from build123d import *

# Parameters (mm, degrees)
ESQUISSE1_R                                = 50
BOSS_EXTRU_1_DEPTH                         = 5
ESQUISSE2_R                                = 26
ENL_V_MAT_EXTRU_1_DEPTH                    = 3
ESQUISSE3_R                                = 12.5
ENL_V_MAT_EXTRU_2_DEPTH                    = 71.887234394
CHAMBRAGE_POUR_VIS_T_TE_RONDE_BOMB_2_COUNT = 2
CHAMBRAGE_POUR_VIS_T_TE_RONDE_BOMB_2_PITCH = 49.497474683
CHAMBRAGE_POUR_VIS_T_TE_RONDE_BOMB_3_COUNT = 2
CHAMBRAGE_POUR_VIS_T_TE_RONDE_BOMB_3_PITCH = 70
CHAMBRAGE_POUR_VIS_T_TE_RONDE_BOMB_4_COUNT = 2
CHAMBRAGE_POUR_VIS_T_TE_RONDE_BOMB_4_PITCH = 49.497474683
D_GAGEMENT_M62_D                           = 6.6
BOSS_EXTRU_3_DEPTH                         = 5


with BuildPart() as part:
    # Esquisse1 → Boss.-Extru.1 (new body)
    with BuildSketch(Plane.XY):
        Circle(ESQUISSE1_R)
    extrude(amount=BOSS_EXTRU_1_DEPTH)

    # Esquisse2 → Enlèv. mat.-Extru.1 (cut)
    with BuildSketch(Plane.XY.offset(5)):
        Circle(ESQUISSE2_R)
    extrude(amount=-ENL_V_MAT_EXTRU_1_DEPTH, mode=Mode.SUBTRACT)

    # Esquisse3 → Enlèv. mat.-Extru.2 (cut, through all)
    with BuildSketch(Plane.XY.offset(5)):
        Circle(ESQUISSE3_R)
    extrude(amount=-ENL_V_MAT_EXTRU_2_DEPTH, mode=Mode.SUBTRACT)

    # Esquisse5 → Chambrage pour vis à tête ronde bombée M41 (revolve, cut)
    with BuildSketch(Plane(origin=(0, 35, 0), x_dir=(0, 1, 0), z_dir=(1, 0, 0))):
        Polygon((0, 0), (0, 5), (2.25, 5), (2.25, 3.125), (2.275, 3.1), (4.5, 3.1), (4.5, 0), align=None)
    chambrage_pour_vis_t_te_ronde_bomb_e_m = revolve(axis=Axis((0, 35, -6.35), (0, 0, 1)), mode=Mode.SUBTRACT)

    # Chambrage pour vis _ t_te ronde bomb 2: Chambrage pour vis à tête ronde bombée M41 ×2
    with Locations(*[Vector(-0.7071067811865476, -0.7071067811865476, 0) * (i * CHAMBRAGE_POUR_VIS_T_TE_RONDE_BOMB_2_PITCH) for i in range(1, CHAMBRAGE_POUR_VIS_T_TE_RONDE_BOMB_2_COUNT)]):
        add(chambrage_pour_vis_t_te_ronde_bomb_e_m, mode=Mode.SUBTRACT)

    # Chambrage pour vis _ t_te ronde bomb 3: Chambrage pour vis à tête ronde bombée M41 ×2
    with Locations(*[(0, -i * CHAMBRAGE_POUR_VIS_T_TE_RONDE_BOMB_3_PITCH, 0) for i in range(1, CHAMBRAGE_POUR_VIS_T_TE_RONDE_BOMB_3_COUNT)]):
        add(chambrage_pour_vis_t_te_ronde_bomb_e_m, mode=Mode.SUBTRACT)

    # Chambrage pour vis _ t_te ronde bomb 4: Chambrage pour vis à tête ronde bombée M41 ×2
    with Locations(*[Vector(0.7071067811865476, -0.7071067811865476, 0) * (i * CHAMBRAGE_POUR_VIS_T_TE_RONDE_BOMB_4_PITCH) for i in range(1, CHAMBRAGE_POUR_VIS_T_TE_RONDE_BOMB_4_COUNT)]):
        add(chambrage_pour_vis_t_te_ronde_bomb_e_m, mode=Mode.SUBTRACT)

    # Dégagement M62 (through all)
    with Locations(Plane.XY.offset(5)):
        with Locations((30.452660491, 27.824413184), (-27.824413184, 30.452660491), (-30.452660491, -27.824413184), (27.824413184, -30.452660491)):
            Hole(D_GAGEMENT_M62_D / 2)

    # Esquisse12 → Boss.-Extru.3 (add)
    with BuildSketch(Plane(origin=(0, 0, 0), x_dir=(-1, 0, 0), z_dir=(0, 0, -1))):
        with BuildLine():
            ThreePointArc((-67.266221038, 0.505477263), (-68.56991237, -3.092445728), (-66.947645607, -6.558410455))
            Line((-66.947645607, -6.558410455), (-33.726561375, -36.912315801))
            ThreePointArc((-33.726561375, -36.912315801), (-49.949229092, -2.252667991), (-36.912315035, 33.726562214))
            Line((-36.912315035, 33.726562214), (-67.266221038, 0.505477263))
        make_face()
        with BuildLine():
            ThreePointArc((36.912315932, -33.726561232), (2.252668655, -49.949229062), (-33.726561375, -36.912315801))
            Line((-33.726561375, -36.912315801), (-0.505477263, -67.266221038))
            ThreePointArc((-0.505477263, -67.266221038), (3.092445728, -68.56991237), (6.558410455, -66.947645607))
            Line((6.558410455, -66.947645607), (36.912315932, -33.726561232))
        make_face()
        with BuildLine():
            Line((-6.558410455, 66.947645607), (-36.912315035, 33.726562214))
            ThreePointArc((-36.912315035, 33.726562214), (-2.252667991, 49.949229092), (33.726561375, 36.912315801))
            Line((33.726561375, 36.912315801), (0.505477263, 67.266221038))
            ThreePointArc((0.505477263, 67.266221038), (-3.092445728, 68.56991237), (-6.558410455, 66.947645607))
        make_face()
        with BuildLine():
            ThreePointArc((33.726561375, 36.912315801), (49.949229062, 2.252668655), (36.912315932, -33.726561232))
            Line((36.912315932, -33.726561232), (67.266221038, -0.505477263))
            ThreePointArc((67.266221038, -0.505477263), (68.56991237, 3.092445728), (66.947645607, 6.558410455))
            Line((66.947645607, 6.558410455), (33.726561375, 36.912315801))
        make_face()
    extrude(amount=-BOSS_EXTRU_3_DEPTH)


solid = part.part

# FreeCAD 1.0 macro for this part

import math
import FreeCAD as App
import Part
import Sketcher

V = App.Vector
Q = App.Units.Quantity


def add_polygon(sketch, points):
    """Adds a closed chain of lines whose ends are joined by coincident constraints."""
    first, n = sketch.GeometryCount, len(points)
    for a, b in zip(points, points[1:] + points[:1]):
        sketch.addGeometry(Part.LineSegment(App.Vector(*a, 0), App.Vector(*b, 0)), False)
    for i in range(n):
        sketch.addConstraint(Sketcher.Constraint("Coincident", first + i, 2, first + (i + 1) % n, 1))

doc = App.newDocument("Part")
body = doc.addObject("PartDesign::Body", "Body")

sketch1 = doc.addObject("Sketcher::SketchObject", "Sketch")
body.addObject(sketch1)
sketch1.AttachmentSupport = (doc.XY_Plane, [""])
sketch1.MapMode = "FlatFace"
sketch1.addGeometry(Part.Circle(V(0, 0, 0), V(0, 0, 1), 50), False)
sketch1.addConstraint(Sketcher.Constraint("Coincident", 0, 3, -1, 1))
sketch1.addConstraint(Sketcher.Constraint("Diameter", 0, 100.0))
pad1 = doc.addObject("PartDesign::Pad", "Pad")
body.addObject(pad1)
pad1.Profile = sketch1
pad1.Length = 5

sketch2 = doc.addObject("Sketcher::SketchObject", "Sketch001")
body.addObject(sketch2)
sketch2.AttachmentSupport = (doc.XY_Plane, [""])
sketch2.MapMode = "FlatFace"
sketch2.AttachmentOffset = App.Placement(V(0, 0, 5), App.Rotation())
sketch2.addGeometry(Part.Circle(V(0, 0, 0), V(0, 0, 1), 26), False)
sketch2.addConstraint(Sketcher.Constraint("Coincident", 0, 3, -1, 1))
sketch2.addConstraint(Sketcher.Constraint("Diameter", 0, 52.0))
pocket1 = doc.addObject("PartDesign::Pocket", "Pocket")
body.addObject(pocket1)
pocket1.Profile = sketch2
pocket1.Length = 3

sketch3 = doc.addObject("Sketcher::SketchObject", "Sketch002")
body.addObject(sketch3)
sketch3.AttachmentSupport = (doc.XY_Plane, [""])
sketch3.MapMode = "FlatFace"
sketch3.AttachmentOffset = App.Placement(V(0, 0, 5), App.Rotation())
sketch3.addGeometry(Part.Circle(V(0, 0, 0), V(0, 0, 1), 12.5), False)
sketch3.addConstraint(Sketcher.Constraint("Coincident", 0, 3, -1, 1))
sketch3.addConstraint(Sketcher.Constraint("Diameter", 0, 25.0))
pocket2 = doc.addObject("PartDesign::Pocket", "Pocket001")
body.addObject(pocket2)
pocket2.Profile = sketch3
pocket2.Type = "ThroughAll"

sketch4 = doc.addObject("Sketcher::SketchObject", "Sketch003")
body.addObject(sketch4)
sketch4.AttachmentSupport = (doc.YZ_Plane, [""])
sketch4.MapMode = "FlatFace"
add_polygon(sketch4, [(35, 5), (35, 0), (39.5, 0), (39.5, 3.1), (37.275, 3.1), (37.25, 3.125), (37.25, 5)])
sketch4.addGeometry(Part.LineSegment(V(35, 0, 0), V(35, 5, 0)), True)
sketch4.addConstraint(Sketcher.Constraint("Vertical", 0))
sketch4.addConstraint(Sketcher.Constraint("Horizontal", 1))
sketch4.addConstraint(Sketcher.Constraint("Vertical", 2))
sketch4.addConstraint(Sketcher.Constraint("Horizontal", 3))
sketch4.addConstraint(Sketcher.Constraint("Vertical", 5))
sketch4.addConstraint(Sketcher.Constraint("Horizontal", 6))
sketch4.addConstraint(Sketcher.Constraint("Vertical", 7))
sketch4.addConstraint(Sketcher.Constraint("Coincident", 7, 1, 0, 2))
sketch4.addConstraint(Sketcher.Constraint("PointOnObject", 0, 2, -1))
sketch4.addConstraint(Sketcher.Constraint("Horizontal", 5, 2, 7, 2))
sketch4.addConstraint(Sketcher.Constraint("DistanceY", 0, 2, 0, 1, 5.0))
sketch4.addConstraint(Sketcher.Constraint("Angle", 4, Q("135 deg")))
sketch4.addConstraint(Sketcher.Constraint("DistanceX", 1, 1, 1, 2, 4.5))
sketch4.addConstraint(Sketcher.Constraint("DistanceY", 2, 1, 2, 2, 3.1))
sketch4.addConstraint(Sketcher.Constraint("DistanceX", -1, 1, 0, 2, 35.0))
sketch4.addConstraint(Sketcher.Constraint("DistanceX", 6, 2, 6, 1, 2.25))
sketch4.addConstraint(Sketcher.Constraint("DistanceX", 3, 2, 3, 1, 2.225))
groove = doc.addObject("PartDesign::Groove", "Groove")
body.addObject(groove)
groove.Profile = sketch4
groove.ReferenceAxis = (sketch4, ["Axis0"])
groove.Angle = 360
doc.recompute()

datumline = doc.addObject("PartDesign::Line", "DatumLine")
body.addObject(datumline)
datumline.Placement = App.Placement(V(0, 0, 0), App.Rotation(V(0, 0, 1), V(-0.707106781, -0.707106781, 0)))
linearpattern = doc.addObject("PartDesign::LinearPattern", "LinearPattern")
body.addObject(linearpattern)
linearpattern.Originals = [groove]
linearpattern.Direction = (datumline, [""])
linearpattern.Mode = "offset"
linearpattern.Offset = 49.497475
linearpattern.Occurrences = 2
body.Tip = linearpattern
doc.recompute()

linearpattern2 = doc.addObject("PartDesign::LinearPattern", "LinearPattern001")
body.addObject(linearpattern2)
linearpattern2.Originals = [groove]
linearpattern2.Direction = (doc.Y_Axis, [""])
linearpattern2.Mode = "offset"
linearpattern2.Offset = 70
linearpattern2.Occurrences = 2
linearpattern2.Reversed = True
body.Tip = linearpattern2
doc.recompute()

datumline2 = doc.addObject("PartDesign::Line", "DatumLine001")
body.addObject(datumline2)
datumline2.Placement = App.Placement(V(0, 0, 0), App.Rotation(V(0, 0, 1), V(0.707106781, -0.707106781, 0)))
linearpattern3 = doc.addObject("PartDesign::LinearPattern", "LinearPattern002")
body.addObject(linearpattern3)
linearpattern3.Originals = [groove]
linearpattern3.Direction = (datumline2, [""])
linearpattern3.Mode = "offset"
linearpattern3.Offset = 49.497475
linearpattern3.Occurrences = 2
body.Tip = linearpattern3

sketch5 = doc.addObject("Sketcher::SketchObject", "Sketch004")
body.addObject(sketch5)
sketch5.AttachmentSupport = (doc.XY_Plane, [""])
sketch5.MapMode = "FlatFace"
sketch5.AttachmentOffset = App.Placement(V(0, 0, 5), App.Rotation())
sketch5.addGeometry(Part.Circle(V(30.45266, 27.824413, 0), V(0, 0, 1), 3.3), False)
sketch5.addGeometry(Part.Circle(V(-27.824413, 30.45266, 0), V(0, 0, 1), 3.3), False)
sketch5.addGeometry(Part.Circle(V(-30.45266, -27.824413, 0), V(0, 0, 1), 3.3), False)
sketch5.addGeometry(Part.Circle(V(27.824413, -30.45266, 0), V(0, 0, 1), 3.3), False)
sketch5.addConstraint(Sketcher.Constraint("Equal", 0, 1))
sketch5.addConstraint(Sketcher.Constraint("Equal", 1, 2))
sketch5.addConstraint(Sketcher.Constraint("Equal", 2, 3))
sketch5.addConstraint(Sketcher.Constraint("Symmetric", 0, 3, 2, 3, -1, 1))
sketch5.addConstraint(Sketcher.Constraint("Symmetric", 1, 3, 3, 3, -1, 1))
sketch5.addConstraint(Sketcher.Constraint("Diameter", 0, 6.6))
sketch5.addConstraint(Sketcher.Constraint("DistanceX", -1, 1, 0, 3, 30.45266))
sketch5.addConstraint(Sketcher.Constraint("DistanceY", -1, 1, 1, 3, 30.45266))
sketch5.addConstraint(Sketcher.Constraint("DistanceY", -1, 1, 0, 3, 27.824413))
sketch5.addConstraint(Sketcher.Constraint("DistanceX", 1, 3, -1, 1, 27.824413))
doc.recompute()
hole = doc.addObject("PartDesign::Hole", "Hole")
body.addObject(hole)
hole.Profile = sketch5
hole.ThreadType = "None"
hole.Diameter = 6.6
hole.DepthType = "ThroughAll"

sketch6 = doc.addObject("Sketcher::SketchObject", "Sketch005")
body.addObject(sketch6)
sketch6.AttachmentSupport = (doc.XY_Plane, [""])
sketch6.MapMode = "FlatFace"
sketch6.addGeometry(Part.ArcOfCircle(Part.Circle(V(63.574989, -2.867179, 0), V(0, 0, 1), 5), math.radians(-47.582242), math.radians(42.417758)), False)
sketch6.addGeometry(Part.LineSegment(V(66.947646, -6.55841, 0), V(33.726561, -36.912316, 0)), False)
sketch6.addGeometry(Part.ArcOfCircle(Part.Circle(V(0, 0, 0), V(0, 0, 1), 50), math.radians(-47.582242), math.radians(42.417759)), False)
sketch6.addGeometry(Part.LineSegment(V(36.912315, 33.726562, 0), V(67.266221, 0.505477, 0)), False)
sketch6.addGeometry(Part.ArcOfCircle(Part.Circle(V(0, 0, 0), V(0, 0, 1), 50), math.radians(-137.582242), math.radians(-47.582242)), False)
sketch6.addGeometry(Part.LineSegment(V(33.726561, -36.912316, 0), V(0.505477, -67.266221, 0)), False)
sketch6.addGeometry(Part.ArcOfCircle(Part.Circle(V(-2.867179, -63.574989, 0), V(0, 0, 1), 5), math.radians(-137.582242), math.radians(-47.582242)), False)
sketch6.addGeometry(Part.LineSegment(V(-6.55841, -66.947646, 0), V(-36.912316, -33.726561, 0)), False)
sketch6.addGeometry(Part.LineSegment(V(6.55841, 66.947646, 0), V(36.912315, 33.726562, 0)), False)
sketch6.addGeometry(Part.ArcOfCircle(Part.Circle(V(0, 0, 0), V(0, 0, 1), 50), math.radians(42.417759), math.radians(132.417758)), False)
sketch6.addGeometry(Part.LineSegment(V(-33.726561, 36.912316, 0), V(-0.505477, 67.266221, 0)), False)
sketch6.addGeometry(Part.ArcOfCircle(Part.Circle(V(2.867179, 63.574989, 0), V(0, 0, 1), 5), math.radians(42.417758), math.radians(132.417758)), False)
sketch6.addGeometry(Part.ArcOfCircle(Part.Circle(V(0, 0, 0), V(0, 0, 1), 50), math.radians(132.417758), math.radians(222.417758)), False)
sketch6.addGeometry(Part.LineSegment(V(-36.912316, -33.726561, 0), V(-67.266221, -0.505477, 0)), False)
sketch6.addGeometry(Part.ArcOfCircle(Part.Circle(V(-63.574989, 2.867179, 0), V(0, 0, 1), 5), math.radians(132.417758), math.radians(222.417758)), False)
sketch6.addGeometry(Part.LineSegment(V(-66.947646, 6.55841, 0), V(-33.726561, 36.912316, 0)), False)
sketch6.addConstraint(Sketcher.Constraint("Tangent", 0, 1, 1, 1))
sketch6.addConstraint(Sketcher.Constraint("Tangent", 1, 2, 2, 1))
sketch6.addConstraint(Sketcher.Constraint("Tangent", 2, 2, 3, 1))
sketch6.addConstraint(Sketcher.Constraint("Tangent", 3, 2, 0, 2))
sketch6.addConstraint(Sketcher.Constraint("Tangent", 4, 2, 5, 1))
sketch6.addConstraint(Sketcher.Constraint("Tangent", 5, 2, 6, 2))
sketch6.addConstraint(Sketcher.Constraint("Tangent", 6, 1, 7, 1))
sketch6.addConstraint(Sketcher.Constraint("Tangent", 7, 2, 4, 1))
sketch6.addConstraint(Sketcher.Constraint("Tangent", 8, 2, 9, 1))
sketch6.addConstraint(Sketcher.Constraint("Tangent", 9, 2, 10, 1))
sketch6.addConstraint(Sketcher.Constraint("Tangent", 10, 2, 11, 2))
sketch6.addConstraint(Sketcher.Constraint("Tangent", 11, 1, 8, 1))
sketch6.addConstraint(Sketcher.Constraint("Tangent", 12, 2, 13, 1))
sketch6.addConstraint(Sketcher.Constraint("Tangent", 13, 2, 14, 2))
sketch6.addConstraint(Sketcher.Constraint("Tangent", 14, 1, 15, 1))
sketch6.addConstraint(Sketcher.Constraint("Tangent", 15, 2, 12, 1))
sketch6.addConstraint(Sketcher.Constraint("Coincident", 2, 3, -1, 1))
sketch6.addConstraint(Sketcher.Constraint("Coincident", 4, 3, -1, 1))
sketch6.addConstraint(Sketcher.Constraint("Coincident", 9, 3, -1, 1))
sketch6.addConstraint(Sketcher.Constraint("Coincident", 12, 3, -1, 1))
sketch6.addConstraint(Sketcher.Constraint("Coincident", 4, 2, 1, 2))
sketch6.addConstraint(Sketcher.Constraint("Coincident", 8, 2, 2, 2))
sketch6.addConstraint(Sketcher.Constraint("Coincident", 12, 2, 7, 2))
sketch6.addConstraint(Sketcher.Constraint("Equal", 0, 6))
sketch6.addConstraint(Sketcher.Constraint("Equal", 6, 11))
sketch6.addConstraint(Sketcher.Constraint("Equal", 11, 14))
sketch6.addConstraint(Sketcher.Constraint("Symmetric", 6, 3, 11, 3, -1, 1))
sketch6.addConstraint(Sketcher.Constraint("Perpendicular", 1, 3))
sketch6.addConstraint(Sketcher.Constraint("Perpendicular", 13, 15))
sketch6.addConstraint(Sketcher.Constraint("Radius", 0, 5.0))
sketch6.addConstraint(Sketcher.Constraint("Radius", 2, 50.0))
sketch6.addConstraint(Sketcher.Constraint("DistanceX", -1, 1, 0, 3, 63.574989))
pad2 = doc.addObject("PartDesign::Pad", "Pad001")
body.addObject(pad2)
pad2.Profile = sketch6
pad2.Length = 5

doc.recompute()
